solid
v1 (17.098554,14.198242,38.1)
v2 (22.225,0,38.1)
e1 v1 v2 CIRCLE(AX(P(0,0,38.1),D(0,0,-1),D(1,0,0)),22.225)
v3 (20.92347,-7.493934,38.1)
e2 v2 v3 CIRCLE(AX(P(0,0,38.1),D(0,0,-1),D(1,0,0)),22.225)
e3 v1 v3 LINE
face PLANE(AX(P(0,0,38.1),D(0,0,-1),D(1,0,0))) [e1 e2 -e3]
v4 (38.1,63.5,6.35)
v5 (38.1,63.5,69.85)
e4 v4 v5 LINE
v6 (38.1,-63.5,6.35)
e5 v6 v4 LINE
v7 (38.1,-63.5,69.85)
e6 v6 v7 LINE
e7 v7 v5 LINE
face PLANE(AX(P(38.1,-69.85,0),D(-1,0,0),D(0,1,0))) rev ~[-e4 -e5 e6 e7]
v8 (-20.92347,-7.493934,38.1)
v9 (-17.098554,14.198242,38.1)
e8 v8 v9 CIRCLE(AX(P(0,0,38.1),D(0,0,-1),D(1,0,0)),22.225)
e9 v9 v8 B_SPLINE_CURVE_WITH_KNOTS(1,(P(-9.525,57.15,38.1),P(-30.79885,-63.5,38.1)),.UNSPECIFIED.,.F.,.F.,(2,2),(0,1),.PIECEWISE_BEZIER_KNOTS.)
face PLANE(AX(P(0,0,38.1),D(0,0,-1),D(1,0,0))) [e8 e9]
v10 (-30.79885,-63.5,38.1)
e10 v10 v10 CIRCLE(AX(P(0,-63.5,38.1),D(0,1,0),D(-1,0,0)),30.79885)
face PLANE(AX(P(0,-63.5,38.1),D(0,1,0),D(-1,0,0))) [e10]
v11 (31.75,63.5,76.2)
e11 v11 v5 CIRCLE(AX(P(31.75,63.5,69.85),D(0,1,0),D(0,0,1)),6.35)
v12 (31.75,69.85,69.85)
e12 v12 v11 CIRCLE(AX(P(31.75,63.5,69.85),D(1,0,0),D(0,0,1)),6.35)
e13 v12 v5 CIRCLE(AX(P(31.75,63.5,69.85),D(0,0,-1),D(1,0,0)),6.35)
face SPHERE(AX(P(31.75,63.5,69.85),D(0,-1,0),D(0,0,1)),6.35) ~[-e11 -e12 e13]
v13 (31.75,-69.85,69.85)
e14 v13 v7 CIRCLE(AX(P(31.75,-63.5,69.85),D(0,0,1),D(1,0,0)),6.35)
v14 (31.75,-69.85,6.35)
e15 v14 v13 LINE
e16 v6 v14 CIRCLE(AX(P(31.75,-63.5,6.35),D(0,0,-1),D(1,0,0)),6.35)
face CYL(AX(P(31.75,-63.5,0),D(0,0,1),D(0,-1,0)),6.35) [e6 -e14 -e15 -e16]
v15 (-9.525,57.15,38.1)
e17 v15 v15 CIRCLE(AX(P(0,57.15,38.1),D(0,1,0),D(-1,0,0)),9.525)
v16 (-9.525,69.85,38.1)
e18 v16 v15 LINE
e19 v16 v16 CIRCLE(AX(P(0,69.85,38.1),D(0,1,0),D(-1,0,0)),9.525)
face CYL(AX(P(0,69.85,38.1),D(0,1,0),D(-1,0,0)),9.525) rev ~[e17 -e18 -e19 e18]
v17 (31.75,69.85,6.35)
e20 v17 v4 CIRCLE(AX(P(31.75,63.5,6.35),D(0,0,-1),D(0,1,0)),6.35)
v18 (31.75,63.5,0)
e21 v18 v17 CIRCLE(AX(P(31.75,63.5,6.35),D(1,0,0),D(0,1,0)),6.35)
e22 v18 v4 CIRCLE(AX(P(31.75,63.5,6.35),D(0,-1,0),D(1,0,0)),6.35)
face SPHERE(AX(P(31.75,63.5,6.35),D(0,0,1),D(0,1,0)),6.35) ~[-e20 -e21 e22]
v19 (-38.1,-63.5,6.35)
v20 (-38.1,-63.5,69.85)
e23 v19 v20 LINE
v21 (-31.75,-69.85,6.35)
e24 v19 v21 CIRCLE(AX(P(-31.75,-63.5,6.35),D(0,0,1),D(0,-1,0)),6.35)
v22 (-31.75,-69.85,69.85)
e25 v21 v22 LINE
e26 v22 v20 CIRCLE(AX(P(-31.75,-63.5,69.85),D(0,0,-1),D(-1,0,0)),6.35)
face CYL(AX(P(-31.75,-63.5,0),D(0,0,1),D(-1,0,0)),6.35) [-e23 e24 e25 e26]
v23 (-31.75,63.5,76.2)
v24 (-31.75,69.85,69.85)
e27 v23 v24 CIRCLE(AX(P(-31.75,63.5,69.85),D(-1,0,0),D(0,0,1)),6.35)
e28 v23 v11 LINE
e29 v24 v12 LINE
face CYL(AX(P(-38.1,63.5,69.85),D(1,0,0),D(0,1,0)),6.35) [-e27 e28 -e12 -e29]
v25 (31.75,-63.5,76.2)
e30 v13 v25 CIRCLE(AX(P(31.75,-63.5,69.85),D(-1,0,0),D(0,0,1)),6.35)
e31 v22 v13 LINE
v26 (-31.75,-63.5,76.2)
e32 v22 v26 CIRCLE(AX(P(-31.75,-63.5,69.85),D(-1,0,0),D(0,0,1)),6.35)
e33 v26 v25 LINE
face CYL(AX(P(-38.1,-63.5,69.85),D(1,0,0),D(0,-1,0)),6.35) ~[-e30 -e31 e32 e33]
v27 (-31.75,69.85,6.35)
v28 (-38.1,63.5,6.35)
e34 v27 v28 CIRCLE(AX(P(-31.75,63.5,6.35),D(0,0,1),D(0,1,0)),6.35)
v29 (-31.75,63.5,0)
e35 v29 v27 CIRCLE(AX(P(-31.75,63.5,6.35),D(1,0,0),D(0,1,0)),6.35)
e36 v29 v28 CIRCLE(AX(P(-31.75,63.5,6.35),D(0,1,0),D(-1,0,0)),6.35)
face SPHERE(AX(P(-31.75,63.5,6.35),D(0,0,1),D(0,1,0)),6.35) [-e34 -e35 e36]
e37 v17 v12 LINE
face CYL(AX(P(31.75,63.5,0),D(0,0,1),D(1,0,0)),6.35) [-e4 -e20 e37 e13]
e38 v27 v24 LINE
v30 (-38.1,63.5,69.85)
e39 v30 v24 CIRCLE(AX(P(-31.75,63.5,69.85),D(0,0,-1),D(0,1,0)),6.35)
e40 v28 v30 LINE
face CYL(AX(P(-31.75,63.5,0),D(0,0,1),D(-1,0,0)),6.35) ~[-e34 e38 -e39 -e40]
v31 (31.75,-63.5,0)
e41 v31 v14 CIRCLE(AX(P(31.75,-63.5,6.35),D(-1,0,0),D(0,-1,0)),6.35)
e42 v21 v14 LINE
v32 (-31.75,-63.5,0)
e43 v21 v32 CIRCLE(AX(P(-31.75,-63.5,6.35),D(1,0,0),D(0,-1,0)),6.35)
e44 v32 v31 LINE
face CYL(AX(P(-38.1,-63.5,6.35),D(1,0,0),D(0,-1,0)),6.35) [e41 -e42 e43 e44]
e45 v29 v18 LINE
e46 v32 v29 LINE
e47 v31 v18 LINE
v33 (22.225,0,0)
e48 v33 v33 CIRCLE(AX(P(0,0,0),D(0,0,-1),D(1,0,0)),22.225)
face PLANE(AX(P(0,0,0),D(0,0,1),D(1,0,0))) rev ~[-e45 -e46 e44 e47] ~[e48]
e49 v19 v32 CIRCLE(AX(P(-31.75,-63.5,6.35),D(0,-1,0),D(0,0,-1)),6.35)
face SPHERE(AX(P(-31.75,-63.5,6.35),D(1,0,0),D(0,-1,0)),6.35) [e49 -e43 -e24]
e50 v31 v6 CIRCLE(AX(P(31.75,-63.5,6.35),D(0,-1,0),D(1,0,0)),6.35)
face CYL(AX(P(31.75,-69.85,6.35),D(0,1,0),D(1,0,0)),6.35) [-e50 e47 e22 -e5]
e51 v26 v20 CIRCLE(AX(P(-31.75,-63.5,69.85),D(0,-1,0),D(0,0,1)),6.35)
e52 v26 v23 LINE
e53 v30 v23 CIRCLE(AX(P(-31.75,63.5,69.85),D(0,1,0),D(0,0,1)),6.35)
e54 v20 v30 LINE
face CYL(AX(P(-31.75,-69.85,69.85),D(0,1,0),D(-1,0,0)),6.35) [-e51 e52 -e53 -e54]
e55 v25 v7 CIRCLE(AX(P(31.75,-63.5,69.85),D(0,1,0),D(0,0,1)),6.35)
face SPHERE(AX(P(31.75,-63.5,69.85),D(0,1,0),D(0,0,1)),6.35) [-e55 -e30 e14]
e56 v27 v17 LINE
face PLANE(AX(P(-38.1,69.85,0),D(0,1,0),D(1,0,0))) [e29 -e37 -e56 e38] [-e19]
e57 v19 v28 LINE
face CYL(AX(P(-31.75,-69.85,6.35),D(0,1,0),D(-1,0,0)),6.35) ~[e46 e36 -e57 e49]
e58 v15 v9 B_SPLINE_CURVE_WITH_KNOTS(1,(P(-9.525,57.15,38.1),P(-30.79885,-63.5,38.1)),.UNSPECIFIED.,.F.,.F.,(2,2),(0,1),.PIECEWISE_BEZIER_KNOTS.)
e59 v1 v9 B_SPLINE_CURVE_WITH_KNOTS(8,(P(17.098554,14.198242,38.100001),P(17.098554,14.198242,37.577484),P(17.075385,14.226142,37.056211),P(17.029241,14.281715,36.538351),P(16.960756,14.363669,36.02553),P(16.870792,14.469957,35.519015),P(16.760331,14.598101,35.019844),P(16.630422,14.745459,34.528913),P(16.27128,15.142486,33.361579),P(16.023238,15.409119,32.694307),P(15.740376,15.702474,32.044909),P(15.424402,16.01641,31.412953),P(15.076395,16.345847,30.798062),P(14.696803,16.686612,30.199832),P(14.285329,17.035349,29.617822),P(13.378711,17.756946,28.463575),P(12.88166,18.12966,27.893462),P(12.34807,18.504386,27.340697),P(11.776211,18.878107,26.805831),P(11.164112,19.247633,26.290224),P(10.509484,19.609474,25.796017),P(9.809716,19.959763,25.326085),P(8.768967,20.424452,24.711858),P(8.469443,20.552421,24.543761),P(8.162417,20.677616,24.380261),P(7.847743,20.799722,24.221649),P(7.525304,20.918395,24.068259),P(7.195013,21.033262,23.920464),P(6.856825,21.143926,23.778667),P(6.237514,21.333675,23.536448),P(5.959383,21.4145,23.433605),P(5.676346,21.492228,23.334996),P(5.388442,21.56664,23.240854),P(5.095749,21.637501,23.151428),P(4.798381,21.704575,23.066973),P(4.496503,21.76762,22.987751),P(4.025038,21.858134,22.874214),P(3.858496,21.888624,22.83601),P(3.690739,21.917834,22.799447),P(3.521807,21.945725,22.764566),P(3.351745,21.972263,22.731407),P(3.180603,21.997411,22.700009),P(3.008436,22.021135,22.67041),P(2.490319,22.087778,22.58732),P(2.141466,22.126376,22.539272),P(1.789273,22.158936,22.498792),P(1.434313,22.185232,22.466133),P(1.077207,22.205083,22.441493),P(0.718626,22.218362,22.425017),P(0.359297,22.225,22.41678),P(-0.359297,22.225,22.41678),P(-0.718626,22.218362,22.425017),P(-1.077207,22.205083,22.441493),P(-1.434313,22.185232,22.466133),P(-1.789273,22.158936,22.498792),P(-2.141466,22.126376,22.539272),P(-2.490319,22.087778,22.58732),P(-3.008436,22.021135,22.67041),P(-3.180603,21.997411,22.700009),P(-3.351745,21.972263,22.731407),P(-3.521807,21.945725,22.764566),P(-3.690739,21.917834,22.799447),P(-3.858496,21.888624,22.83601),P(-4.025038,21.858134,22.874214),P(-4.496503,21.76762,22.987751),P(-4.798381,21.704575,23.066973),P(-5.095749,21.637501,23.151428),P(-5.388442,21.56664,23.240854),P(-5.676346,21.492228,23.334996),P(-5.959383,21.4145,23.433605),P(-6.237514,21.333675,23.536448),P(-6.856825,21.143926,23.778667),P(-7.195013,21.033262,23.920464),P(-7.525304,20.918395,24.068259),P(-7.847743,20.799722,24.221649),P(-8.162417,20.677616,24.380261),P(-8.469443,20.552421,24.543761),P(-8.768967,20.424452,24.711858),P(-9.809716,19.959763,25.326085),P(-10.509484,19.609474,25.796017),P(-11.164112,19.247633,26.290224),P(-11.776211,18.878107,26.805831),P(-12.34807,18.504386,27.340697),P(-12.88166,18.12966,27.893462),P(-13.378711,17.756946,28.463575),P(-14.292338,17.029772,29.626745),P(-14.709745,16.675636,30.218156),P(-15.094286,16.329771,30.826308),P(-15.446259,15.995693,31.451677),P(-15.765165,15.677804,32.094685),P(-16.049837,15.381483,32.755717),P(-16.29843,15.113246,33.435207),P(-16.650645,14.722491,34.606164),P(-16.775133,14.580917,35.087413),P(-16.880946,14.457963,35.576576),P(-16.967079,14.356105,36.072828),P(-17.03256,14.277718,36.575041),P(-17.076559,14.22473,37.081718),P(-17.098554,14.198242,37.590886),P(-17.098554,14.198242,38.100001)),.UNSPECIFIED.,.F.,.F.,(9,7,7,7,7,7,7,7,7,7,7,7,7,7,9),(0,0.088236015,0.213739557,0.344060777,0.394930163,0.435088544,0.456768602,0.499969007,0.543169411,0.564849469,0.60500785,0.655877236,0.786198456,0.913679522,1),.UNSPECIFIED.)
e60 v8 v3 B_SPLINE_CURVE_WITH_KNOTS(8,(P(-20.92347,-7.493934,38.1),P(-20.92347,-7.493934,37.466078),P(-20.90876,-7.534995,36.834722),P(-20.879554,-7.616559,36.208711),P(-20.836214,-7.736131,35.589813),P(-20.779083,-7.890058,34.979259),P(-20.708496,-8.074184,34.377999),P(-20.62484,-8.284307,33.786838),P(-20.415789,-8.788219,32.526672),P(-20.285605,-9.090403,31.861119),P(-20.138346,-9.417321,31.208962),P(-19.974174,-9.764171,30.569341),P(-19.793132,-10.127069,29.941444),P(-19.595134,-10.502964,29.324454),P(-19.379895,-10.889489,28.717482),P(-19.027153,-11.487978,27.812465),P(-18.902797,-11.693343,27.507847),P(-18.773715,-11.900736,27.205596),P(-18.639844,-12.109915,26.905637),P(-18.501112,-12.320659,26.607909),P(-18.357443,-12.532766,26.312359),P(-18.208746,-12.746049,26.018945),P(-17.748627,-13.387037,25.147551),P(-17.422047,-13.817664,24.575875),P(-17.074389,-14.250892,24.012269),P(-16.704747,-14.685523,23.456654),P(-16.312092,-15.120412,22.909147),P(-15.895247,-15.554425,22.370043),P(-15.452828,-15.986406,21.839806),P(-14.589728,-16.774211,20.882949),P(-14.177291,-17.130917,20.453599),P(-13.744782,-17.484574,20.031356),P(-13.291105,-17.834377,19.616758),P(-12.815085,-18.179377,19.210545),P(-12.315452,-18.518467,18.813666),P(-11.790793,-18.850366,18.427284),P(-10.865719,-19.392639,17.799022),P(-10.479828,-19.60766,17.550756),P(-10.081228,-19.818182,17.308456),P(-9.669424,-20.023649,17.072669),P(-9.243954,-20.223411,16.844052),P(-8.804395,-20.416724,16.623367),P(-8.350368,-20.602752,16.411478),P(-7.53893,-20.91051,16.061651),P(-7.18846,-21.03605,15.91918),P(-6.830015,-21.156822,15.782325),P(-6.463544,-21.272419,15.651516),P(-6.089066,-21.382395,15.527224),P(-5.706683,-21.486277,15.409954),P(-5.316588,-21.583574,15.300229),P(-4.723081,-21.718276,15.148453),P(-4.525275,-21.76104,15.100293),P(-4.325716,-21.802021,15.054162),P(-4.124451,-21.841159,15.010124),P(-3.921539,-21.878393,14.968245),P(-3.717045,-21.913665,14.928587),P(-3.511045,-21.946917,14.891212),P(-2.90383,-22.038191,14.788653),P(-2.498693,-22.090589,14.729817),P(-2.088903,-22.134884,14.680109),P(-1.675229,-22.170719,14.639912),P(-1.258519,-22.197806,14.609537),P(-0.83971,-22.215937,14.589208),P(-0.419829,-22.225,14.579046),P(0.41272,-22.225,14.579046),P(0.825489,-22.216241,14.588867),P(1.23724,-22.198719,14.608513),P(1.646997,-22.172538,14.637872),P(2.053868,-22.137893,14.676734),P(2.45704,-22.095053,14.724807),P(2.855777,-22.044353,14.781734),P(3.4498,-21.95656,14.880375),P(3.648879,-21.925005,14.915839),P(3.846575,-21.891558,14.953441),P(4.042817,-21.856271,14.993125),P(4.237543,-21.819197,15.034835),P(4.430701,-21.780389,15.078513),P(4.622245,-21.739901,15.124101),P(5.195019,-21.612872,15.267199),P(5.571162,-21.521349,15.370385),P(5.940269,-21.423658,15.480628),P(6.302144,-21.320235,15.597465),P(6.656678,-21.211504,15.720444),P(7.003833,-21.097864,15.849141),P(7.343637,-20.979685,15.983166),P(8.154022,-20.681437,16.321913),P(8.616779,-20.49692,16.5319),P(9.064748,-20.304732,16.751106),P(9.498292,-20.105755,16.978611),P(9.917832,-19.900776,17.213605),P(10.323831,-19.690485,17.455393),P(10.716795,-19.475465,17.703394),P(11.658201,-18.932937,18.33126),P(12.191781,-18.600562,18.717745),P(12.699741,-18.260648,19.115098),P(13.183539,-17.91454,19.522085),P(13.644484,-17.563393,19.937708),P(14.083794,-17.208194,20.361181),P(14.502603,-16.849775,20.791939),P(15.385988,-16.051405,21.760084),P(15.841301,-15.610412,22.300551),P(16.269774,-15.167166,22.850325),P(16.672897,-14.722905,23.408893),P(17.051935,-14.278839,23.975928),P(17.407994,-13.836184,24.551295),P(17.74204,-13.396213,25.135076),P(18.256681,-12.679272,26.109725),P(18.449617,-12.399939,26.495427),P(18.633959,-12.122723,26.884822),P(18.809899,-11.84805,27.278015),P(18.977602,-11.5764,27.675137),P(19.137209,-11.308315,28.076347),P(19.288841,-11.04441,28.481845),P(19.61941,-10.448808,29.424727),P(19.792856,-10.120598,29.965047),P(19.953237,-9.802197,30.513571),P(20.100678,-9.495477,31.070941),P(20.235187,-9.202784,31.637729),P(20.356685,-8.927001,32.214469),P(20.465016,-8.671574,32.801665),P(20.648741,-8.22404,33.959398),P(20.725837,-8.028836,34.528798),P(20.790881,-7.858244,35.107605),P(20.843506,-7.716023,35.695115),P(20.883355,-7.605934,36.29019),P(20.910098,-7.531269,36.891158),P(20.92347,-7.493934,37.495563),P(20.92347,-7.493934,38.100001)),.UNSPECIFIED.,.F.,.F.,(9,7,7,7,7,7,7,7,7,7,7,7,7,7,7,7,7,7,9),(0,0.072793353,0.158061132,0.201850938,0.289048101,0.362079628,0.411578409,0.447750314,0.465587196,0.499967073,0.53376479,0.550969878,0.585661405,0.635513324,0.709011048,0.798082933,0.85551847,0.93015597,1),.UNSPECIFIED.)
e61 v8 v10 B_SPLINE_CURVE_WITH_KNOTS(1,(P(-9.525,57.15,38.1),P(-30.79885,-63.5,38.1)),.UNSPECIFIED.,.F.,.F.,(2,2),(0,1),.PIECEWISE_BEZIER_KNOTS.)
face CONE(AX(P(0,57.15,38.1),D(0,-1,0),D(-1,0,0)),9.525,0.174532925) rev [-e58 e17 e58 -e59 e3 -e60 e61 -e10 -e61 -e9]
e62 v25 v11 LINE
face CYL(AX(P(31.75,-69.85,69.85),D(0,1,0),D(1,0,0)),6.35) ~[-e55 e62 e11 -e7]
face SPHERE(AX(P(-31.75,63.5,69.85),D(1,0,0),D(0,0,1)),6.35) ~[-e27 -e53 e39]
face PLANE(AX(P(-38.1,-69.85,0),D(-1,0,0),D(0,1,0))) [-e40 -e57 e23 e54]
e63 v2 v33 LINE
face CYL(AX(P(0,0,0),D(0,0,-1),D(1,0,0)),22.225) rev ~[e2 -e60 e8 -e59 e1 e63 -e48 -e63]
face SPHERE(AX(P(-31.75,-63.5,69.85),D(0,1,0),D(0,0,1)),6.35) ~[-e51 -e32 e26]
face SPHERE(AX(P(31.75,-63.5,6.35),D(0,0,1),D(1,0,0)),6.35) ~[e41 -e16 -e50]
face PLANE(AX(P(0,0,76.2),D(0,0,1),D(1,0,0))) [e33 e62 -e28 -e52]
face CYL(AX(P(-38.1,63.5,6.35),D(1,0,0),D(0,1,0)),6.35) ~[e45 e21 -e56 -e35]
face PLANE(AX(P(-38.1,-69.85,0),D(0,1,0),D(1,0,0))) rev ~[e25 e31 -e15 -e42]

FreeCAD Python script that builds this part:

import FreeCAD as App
import Part
import Sketcher

V = App.Vector
Q = App.Units.Quantity


def add_polygon(sketch, points):
    """Adds a closed chain of lines whose ends are joined by coincident constraints."""
    first, n = sketch.GeometryCount, len(points)
    for a, b in zip(points, points[1:] + points[:1]):
        sketch.addGeometry(Part.LineSegment(App.Vector(*a, 0), App.Vector(*b, 0)), False)
    for i in range(n):
        sketch.addConstraint(Sketcher.Constraint("Coincident", first + i, 2, first + (i + 1) % n, 1))

doc = App.newDocument("Part")
params = doc.addObject("Spreadsheet::Sheet", "Params")
for row, (alias, value) in enumerate([
    ("sketch1_width", "3 in"),
    ("sketch1_height", "5.5 in"),
    ("pad1_length", "3 in"),
    ("fillet_radius", "0.25 in"),
    ("sketch2_diameter", "1.75 in"),
    ("pocket1_length", "0.5 in"),
    ("sketch3_diameter", "0.75 in"),
    ("pocket2_length", "0.5 in"),
    ("sketch4_diameter", "0.75 in"),
    ("pocket3_length", "4.75 in"),
    ("pocket3_taper", "10 deg"),
    ("sketch5_diameter", "1.75 in"),
    ("pocket4_length", "1 in"),
], start=1):
    params.set(f"A{row}", alias)
    params.set(f"B{row}", "=" + value)
    params.setAlias(f"B{row}", alias)

body = doc.addObject("PartDesign::Body", "Body")

# Sketch on XY plane
sketch1 = doc.addObject("Sketcher::SketchObject", "Sketch")
body.addObject(sketch1)
sketch1.AttachmentSupport = (doc.XY_Plane, [""])
sketch1.MapMode = "FlatFace"
add_polygon(sketch1, [(-38.1, 69.85), (-38.1, -69.85), (38.1, -69.85), (38.1, 69.85)])  # lines 0-3
sketch1.addConstraint([
    Sketcher.Constraint("Vertical", 0),
    Sketcher.Constraint("Horizontal", 1),
    Sketcher.Constraint("Vertical", 2),
    Sketcher.Constraint("Horizontal", 3),
    Sketcher.Constraint("Symmetric", 0, 2, 2, 2, -1, 1),
    Sketcher.Constraint("DistanceX", 1, 1, 1, 2, Q("3 in")),
    Sketcher.Constraint("DistanceY", 0, 2, 0, 1, Q("5.5 in")),
])
sketch1.setExpression("Constraints[9]", "Params.sketch1_width")
sketch1.setExpression("Constraints[10]", "Params.sketch1_height")
pad1 = doc.addObject("PartDesign::Pad", "Pad")
body.addObject(pad1)
pad1.Profile = sketch1
pad1.setExpression("Length", "Params.pad1_length")
doc.recompute()

fillet = doc.addObject("PartDesign::Fillet", "Fillet")
body.addObject(fillet)
fillet.Base = (pad1, ["Edge1"])
fillet.UseAllEdges = True
fillet.setExpression("Radius", "Params.fillet_radius")

# Sketch on XY plane
sketch2 = doc.addObject("Sketcher::SketchObject", "Sketch001")
body.addObject(sketch2)
sketch2.AttachmentSupport = (doc.XY_Plane, [""])
sketch2.MapMode = "FlatFace"
sketch2.addGeometry(Part.Circle(V(0, 0, 0), V(0, 0, 1), 22.225), False)
sketch2.addConstraint([
    Sketcher.Constraint("Coincident", 0, 3, -1, 1),
    Sketcher.Constraint("Diameter", 0, Q("1.75 in")),
])
sketch2.setExpression("Constraints[1]", "Params.sketch2_diameter")
pocket1 = doc.addObject("PartDesign::Pocket", "Pocket")
body.addObject(pocket1)
pocket1.Profile = sketch2
pocket1.setExpression("Length", "Params.pocket1_length")
pocket1.Reversed = True

# Sketch on XZ plane
sketch3 = doc.addObject("Sketcher::SketchObject", "Sketch002")
body.addObject(sketch3)
sketch3.AttachmentSupport = (doc.XZ_Plane, [""])
sketch3.MapMode = "FlatFace"
sketch3.AttachmentOffset = App.Placement(V(0, 0, -2.75 * 25.4), App.Rotation())
sketch3.addGeometry(Part.Circle(V(0, 38.1, 0), V(0, 0, 1), 9.525), False)
sketch3.addConstraint([
    Sketcher.Constraint("PointOnObject", 0, 3, -2),
    Sketcher.Constraint("Diameter", 0, Q("0.75 in")),
    Sketcher.Constraint("DistanceY", -1, 1, 0, 3, Q("1.5 in")),
])
sketch3.setExpression("Constraints[1]", "Params.sketch3_diameter")
pocket2 = doc.addObject("PartDesign::Pocket", "Pocket001")
body.addObject(pocket2)
pocket2.Profile = sketch3
pocket2.setExpression("Length", "Params.pocket2_length")
pocket2.Reversed = True

# Sketch on XZ plane
sketch4 = doc.addObject("Sketcher::SketchObject", "Sketch003")
body.addObject(sketch4)
sketch4.AttachmentSupport = (doc.XZ_Plane, [""])
sketch4.MapMode = "FlatFace"
sketch4.AttachmentOffset = App.Placement(V(0, 0, -2.25 * 25.4), App.Rotation())
sketch4.addGeometry(Part.Circle(V(0, 38.1, 0), V(0, 0, 1), 9.525), False)
sketch4.addConstraint([
    Sketcher.Constraint("PointOnObject", 0, 3, -2),
    Sketcher.Constraint("Diameter", 0, Q("0.75 in")),
    Sketcher.Constraint("DistanceY", -1, 1, 0, 3, Q("1.5 in")),
])
sketch4.setExpression("Constraints[1]", "Params.sketch4_diameter")
pocket3 = doc.addObject("PartDesign::Pocket", "Pocket002")
body.addObject(pocket3)
pocket3.Profile = sketch4
pocket3.setExpression("Length", "Params.pocket3_length")
pocket3.Reversed = True
pocket3.setExpression("TaperAngle", "Params.pocket3_taper")

# Sketch on XY plane
sketch5 = doc.addObject("Sketcher::SketchObject", "Sketch004")
body.addObject(sketch5)
sketch5.AttachmentSupport = (doc.XY_Plane, [""])
sketch5.MapMode = "FlatFace"
sketch5.AttachmentOffset = App.Placement(V(0, 0, 0.5 * 25.4), App.Rotation())
sketch5.addGeometry(Part.Circle(V(0, 0, 0), V(0, 0, 1), 22.225), False)
sketch5.addConstraint([
    Sketcher.Constraint("Coincident", 0, 3, -1, 1),
    Sketcher.Constraint("Diameter", 0, Q("1.75 in")),
])
sketch5.setExpression("Constraints[1]", "Params.sketch5_diameter")
pocket4 = doc.addObject("PartDesign::Pocket", "Pocket003")
body.addObject(pocket4)
pocket4.Profile = sketch5
pocket4.setExpression("Length", "Params.pocket4_length")
pocket4.Reversed = True

doc.recompute()
